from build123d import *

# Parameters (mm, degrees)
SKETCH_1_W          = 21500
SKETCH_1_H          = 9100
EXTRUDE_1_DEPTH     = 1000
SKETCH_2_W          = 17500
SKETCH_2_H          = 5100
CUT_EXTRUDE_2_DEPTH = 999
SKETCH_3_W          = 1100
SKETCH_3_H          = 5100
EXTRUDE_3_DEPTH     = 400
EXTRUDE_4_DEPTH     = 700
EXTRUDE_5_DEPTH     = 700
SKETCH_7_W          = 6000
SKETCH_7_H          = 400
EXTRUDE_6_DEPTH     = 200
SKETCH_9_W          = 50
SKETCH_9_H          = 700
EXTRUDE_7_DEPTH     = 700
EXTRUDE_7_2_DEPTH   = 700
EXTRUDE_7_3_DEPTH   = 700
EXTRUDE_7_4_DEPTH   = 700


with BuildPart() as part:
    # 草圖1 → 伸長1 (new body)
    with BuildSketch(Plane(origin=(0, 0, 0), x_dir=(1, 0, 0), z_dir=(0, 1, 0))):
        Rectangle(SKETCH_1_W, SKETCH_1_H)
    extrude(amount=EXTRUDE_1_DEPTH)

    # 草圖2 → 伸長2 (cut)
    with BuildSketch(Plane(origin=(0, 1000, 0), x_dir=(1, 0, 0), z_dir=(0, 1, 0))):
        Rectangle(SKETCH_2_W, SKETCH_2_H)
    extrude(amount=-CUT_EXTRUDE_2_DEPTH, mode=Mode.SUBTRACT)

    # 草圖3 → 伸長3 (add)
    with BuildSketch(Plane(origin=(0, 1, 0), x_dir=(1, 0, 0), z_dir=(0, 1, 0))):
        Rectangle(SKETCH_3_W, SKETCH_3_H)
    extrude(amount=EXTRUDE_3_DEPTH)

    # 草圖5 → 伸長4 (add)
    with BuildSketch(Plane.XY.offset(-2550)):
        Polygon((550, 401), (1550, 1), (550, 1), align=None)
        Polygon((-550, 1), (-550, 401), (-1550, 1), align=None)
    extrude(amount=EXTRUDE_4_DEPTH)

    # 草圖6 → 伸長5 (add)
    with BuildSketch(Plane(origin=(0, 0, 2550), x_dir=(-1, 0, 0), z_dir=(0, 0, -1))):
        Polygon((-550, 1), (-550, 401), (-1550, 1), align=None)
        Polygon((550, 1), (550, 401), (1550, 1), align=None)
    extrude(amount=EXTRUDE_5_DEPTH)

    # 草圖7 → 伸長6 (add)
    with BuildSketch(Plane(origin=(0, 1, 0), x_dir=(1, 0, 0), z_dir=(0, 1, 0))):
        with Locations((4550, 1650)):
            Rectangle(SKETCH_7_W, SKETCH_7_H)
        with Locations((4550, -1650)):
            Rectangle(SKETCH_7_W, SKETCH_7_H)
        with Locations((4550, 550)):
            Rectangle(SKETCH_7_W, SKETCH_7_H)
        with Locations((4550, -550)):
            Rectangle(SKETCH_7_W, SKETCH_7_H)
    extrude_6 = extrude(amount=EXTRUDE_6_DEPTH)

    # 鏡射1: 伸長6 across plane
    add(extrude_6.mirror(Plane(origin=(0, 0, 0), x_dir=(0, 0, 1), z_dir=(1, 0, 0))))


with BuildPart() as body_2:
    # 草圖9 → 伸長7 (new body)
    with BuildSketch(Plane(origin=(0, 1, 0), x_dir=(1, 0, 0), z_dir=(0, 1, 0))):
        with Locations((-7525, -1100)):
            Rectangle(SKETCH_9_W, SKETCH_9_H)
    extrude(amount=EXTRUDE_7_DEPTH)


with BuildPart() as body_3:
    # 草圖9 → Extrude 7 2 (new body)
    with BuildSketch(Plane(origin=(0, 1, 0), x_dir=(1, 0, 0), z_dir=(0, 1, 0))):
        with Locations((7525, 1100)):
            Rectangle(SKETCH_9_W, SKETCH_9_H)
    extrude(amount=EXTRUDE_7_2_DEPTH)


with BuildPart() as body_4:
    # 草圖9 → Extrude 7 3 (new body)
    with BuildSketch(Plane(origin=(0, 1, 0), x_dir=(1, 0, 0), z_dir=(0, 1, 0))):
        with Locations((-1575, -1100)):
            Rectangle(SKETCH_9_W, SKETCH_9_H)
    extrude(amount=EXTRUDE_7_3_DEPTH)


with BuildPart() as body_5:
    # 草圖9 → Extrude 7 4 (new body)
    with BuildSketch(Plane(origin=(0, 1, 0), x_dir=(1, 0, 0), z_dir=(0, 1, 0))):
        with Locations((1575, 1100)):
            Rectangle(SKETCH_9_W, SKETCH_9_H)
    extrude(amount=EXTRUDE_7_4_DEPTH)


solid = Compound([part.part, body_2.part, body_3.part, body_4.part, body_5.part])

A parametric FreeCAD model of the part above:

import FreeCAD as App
import Part
import Sketcher
from FreeCAD import Vector

doc = App.newDocument("Part")
body = doc.addObject("PartDesign::Body", "Body")

# Sketch on XZ plane
sketch1 = doc.addObject("Sketcher::SketchObject", "Sketch")
body.addObject(sketch1)
sketch1.AttachmentSupport = (doc.XZ_Plane, [""])
sketch1.MapMode = "FlatFace"
sketch1.addGeometry([
    Part.LineSegment(Vector(-10750, -4550, 0), Vector(-10750, 4550, 0)),
    Part.LineSegment(Vector(-10750, 4550, 0), Vector(10750, 4550, 0)),
    Part.LineSegment(Vector(10750, 4550, 0), Vector(10750, -4550, 0)),
    Part.LineSegment(Vector(10750, -4550, 0), Vector(-10750, -4550, 0)),
], False)
sketch1.addConstraint([
    Sketcher.Constraint("Coincident", 0, 2, 1, 1),
    Sketcher.Constraint("Coincident", 1, 2, 2, 1),
    Sketcher.Constraint("Coincident", 2, 2, 3, 1),
    Sketcher.Constraint("Coincident", 3, 2, 0, 1),
    Sketcher.Constraint("Vertical", 0),
    Sketcher.Constraint("Horizontal", 1),
    Sketcher.Constraint("Vertical", 2),
    Sketcher.Constraint("Horizontal", 3),
    Sketcher.Constraint("Symmetric", 0, 2, 2, 2, -1, 1),
    Sketcher.Constraint("DistanceX", 1, 1, 1, 2, 21500.0),
    Sketcher.Constraint("DistanceY", 0, 1, 0, 2, 9100.0),
])
pad1 = doc.addObject("PartDesign::Pad", "Pad")
body.addObject(pad1)
pad1.Profile = sketch1
pad1.Length = 1000
pad1.Reversed = True

# Sketch on XZ plane
sketch2 = doc.addObject("Sketcher::SketchObject", "Sketch001")
body.addObject(sketch2)
sketch2.AttachmentSupport = (doc.XZ_Plane, [""])
sketch2.MapMode = "FlatFace"
sketch2.AttachmentOffset = App.Placement(Vector(0, 0, -1000), App.Rotation())
sketch2.addGeometry([
    Part.LineSegment(Vector(-8750, -2550, 0), Vector(-8750, 2550, 0)),
    Part.LineSegment(Vector(-8750, 2550, 0), Vector(8750, 2550, 0)),
    Part.LineSegment(Vector(8750, 2550, 0), Vector(8750, -2550, 0)),
    Part.LineSegment(Vector(8750, -2550, 0), Vector(-8750, -2550, 0)),
], False)
sketch2.addConstraint([
    Sketcher.Constraint("Coincident", 0, 2, 1, 1),
    Sketcher.Constraint("Coincident", 1, 2, 2, 1),
    Sketcher.Constraint("Coincident", 2, 2, 3, 1),
    Sketcher.Constraint("Coincident", 3, 2, 0, 1),
    Sketcher.Constraint("Vertical", 0),
    Sketcher.Constraint("Horizontal", 1),
    Sketcher.Constraint("Vertical", 2),
    Sketcher.Constraint("Horizontal", 3),
    Sketcher.Constraint("Symmetric", 0, 2, 2, 2, -1, 1),
    Sketcher.Constraint("DistanceX", 1, 1, 1, 2, 17500.0),
    Sketcher.Constraint("DistanceY", 0, 1, 0, 2, 5100.0),
])
pocket1 = doc.addObject("PartDesign::Pocket", "Pocket")
body.addObject(pocket1)
pocket1.Profile = sketch2
pocket1.Length = 999
pocket1.Reversed = True

# Sketch on XZ plane
sketch3 = doc.addObject("Sketcher::SketchObject", "Sketch002")
body.addObject(sketch3)
sketch3.AttachmentSupport = (doc.XZ_Plane, [""])
sketch3.MapMode = "FlatFace"
sketch3.AttachmentOffset = App.Placement(Vector(0, 0, -1), App.Rotation())
sketch3.addGeometry([
    Part.LineSegment(Vector(-550, -2550, 0), Vector(-550, 2550, 0)),
    Part.LineSegment(Vector(-550, 2550, 0), Vector(550, 2550, 0)),
    Part.LineSegment(Vector(550, 2550, 0), Vector(550, -2550, 0)),
    Part.LineSegment(Vector(550, -2550, 0), Vector(-550, -2550, 0)),
], False)
sketch3.addConstraint([
    Sketcher.Constraint("Coincident", 0, 2, 1, 1),
    Sketcher.Constraint("Coincident", 1, 2, 2, 1),
    Sketcher.Constraint("Coincident", 2, 2, 3, 1),
    Sketcher.Constraint("Coincident", 3, 2, 0, 1),
    Sketcher.Constraint("Vertical", 0),
    Sketcher.Constraint("Horizontal", 1),
    Sketcher.Constraint("Vertical", 2),
    Sketcher.Constraint("Horizontal", 3),
    Sketcher.Constraint("Symmetric", 0, 2, 2, 2, -1, 1),
    Sketcher.Constraint("DistanceX", 1, 1, 1, 2, 1100.0),
    Sketcher.Constraint("DistanceY", 0, 1, 0, 2, 5100.0),
])
pad2 = doc.addObject("PartDesign::Pad", "Pad001")
body.addObject(pad2)
pad2.Profile = sketch3
pad2.Length = 400
pad2.Reversed = True

# Sketch on XY plane
sketch4 = doc.addObject("Sketcher::SketchObject", "Sketch003")
body.addObject(sketch4)
sketch4.AttachmentSupport = (doc.XY_Plane, [""])
sketch4.MapMode = "FlatFace"
sketch4.AttachmentOffset = App.Placement(Vector(0, 0, -2550), App.Rotation())
sketch4.addGeometry([
    Part.LineSegment(Vector(1550, 1, 0), Vector(550, 401, 0)),  # 0
    Part.LineSegment(Vector(550, 401, 0), Vector(550, 1, 0)),  # 1
    Part.LineSegment(Vector(550, 1, 0), Vector(1550, 1, 0)),  # 2
    Part.LineSegment(Vector(-550, 1, 0), Vector(-550, 401, 0)),  # 3
    Part.LineSegment(Vector(-550, 401, 0), Vector(-1550, 1, 0)),  # 4
    Part.LineSegment(Vector(-1550, 1, 0), Vector(-550, 1, 0)),  # 5
], False)
sketch4.addConstraint([
    Sketcher.Constraint("Coincident", 0, 2, 1, 1),
    Sketcher.Constraint("Coincident", 1, 2, 2, 1),
    Sketcher.Constraint("Coincident", 2, 2, 0, 1),
    Sketcher.Constraint("Coincident", 3, 2, 4, 1),
    Sketcher.Constraint("Coincident", 4, 2, 5, 1),
    Sketcher.Constraint("Coincident", 5, 2, 3, 1),
    Sketcher.Constraint("Vertical", 1),
    Sketcher.Constraint("Horizontal", 2),
    Sketcher.Constraint("Vertical", 3),
    Sketcher.Constraint("Horizontal", 5),
    Sketcher.Constraint("Symmetric", 0, 2, 3, 2, -2),
    Sketcher.Constraint("Symmetric", 2, 2, 4, 2, -2),
    Sketcher.Constraint("DistanceX", 2, 1, 2, 2, 1000.0),
    Sketcher.Constraint("DistanceY", 1, 2, 1, 1, 400.0),
    Sketcher.Constraint("DistanceX", -1, 1, 0, 2, 550.0),
    Sketcher.Constraint("DistanceY", -1, 1, 0, 2, 401.0),
])
pad3 = doc.addObject("PartDesign::Pad", "Pad002")
body.addObject(pad3)
pad3.Profile = sketch4
pad3.Length = 700

# Sketch on XY plane
sketch5 = doc.addObject("Sketcher::SketchObject", "Sketch004")
body.addObject(sketch5)
sketch5.AttachmentSupport = (doc.XY_Plane, [""])
sketch5.MapMode = "FlatFace"
sketch5.AttachmentOffset = App.Placement(Vector(0, 0, 2550), App.Rotation())
sketch5.addGeometry([
    Part.LineSegment(Vector(550, 1, 0), Vector(550, 401, 0)),  # 0
    Part.LineSegment(Vector(550, 401, 0), Vector(1550, 1, 0)),  # 1
    Part.LineSegment(Vector(1550, 1, 0), Vector(550, 1, 0)),  # 2
    Part.LineSegment(Vector(-550, 401, 0), Vector(-550, 1, 0)),  # 3
    Part.LineSegment(Vector(-550, 1, 0), Vector(-1550, 1, 0)),  # 4
    Part.LineSegment(Vector(-1550, 1, 0), Vector(-550, 401, 0)),  # 5
], False)
sketch5.addConstraint([
    Sketcher.Constraint("Coincident", 0, 2, 1, 1),
    Sketcher.Constraint("Coincident", 1, 2, 2, 1),
    Sketcher.Constraint("Coincident", 2, 2, 0, 1),
    Sketcher.Constraint("Coincident", 3, 2, 4, 1),
    Sketcher.Constraint("Coincident", 4, 2, 5, 1),
    Sketcher.Constraint("Coincident", 5, 2, 3, 1),
    Sketcher.Constraint("Vertical", 0),
    Sketcher.Constraint("Horizontal", 2),
    Sketcher.Constraint("Vertical", 3),
    Sketcher.Constraint("Horizontal", 4),
    Sketcher.Constraint("Symmetric", 2, 2, 3, 2, -2),
    Sketcher.Constraint("Horizontal", 0, 2, 5, 2),
    Sketcher.Constraint("Equal", 2, 4),
    Sketcher.Constraint("DistanceX", 2, 2, 2, 1, 1000.0),
    Sketcher.Constraint("DistanceY", 0, 1, 0, 2, 400.0),
    Sketcher.Constraint("DistanceX", -1, 1, 0, 2, 550.0),
    Sketcher.Constraint("DistanceY", -1, 1, 0, 2, 401.0),
])
pad4 = doc.addObject("PartDesign::Pad", "Pad003")
body.addObject(pad4)
pad4.Profile = sketch5
pad4.Length = 700
pad4.Reversed = True

# Sketch on XZ plane
sketch6 = doc.addObject("Sketcher::SketchObject", "Sketch005")
body.addObject(sketch6)
sketch6.AttachmentSupport = (doc.XZ_Plane, [""])
sketch6.MapMode = "FlatFace"
sketch6.AttachmentOffset = App.Placement(Vector(0, 0, -1), App.Rotation())
sketch6.addGeometry([
    Part.LineSegment(Vector(1550, -1850, 0), Vector(1550, -1450, 0)),  # 0
    Part.LineSegment(Vector(1550, -1450, 0), Vector(7550, -1450, 0)),  # 1
    Part.LineSegment(Vector(7550, -1450, 0), Vector(7550, -1850, 0)),  # 2
    Part.LineSegment(Vector(7550, -1850, 0), Vector(1550, -1850, 0)),  # 3
    Part.LineSegment(Vector(1550, 1450, 0), Vector(1550, 1850, 0)),  # 4
    Part.LineSegment(Vector(1550, 1850, 0), Vector(7550, 1850, 0)),  # 5
    Part.LineSegment(Vector(7550, 1850, 0), Vector(7550, 1450, 0)),  # 6
    Part.LineSegment(Vector(7550, 1450, 0), Vector(1550, 1450, 0)),  # 7
    Part.LineSegment(Vector(1550, -750, 0), Vector(1550, -350, 0)),  # 8
    Part.LineSegment(Vector(1550, -350, 0), Vector(7550, -350, 0)),  # 9
    Part.LineSegment(Vector(7550, -350, 0), Vector(7550, -750, 0)),  # 10
    Part.LineSegment(Vector(7550, -750, 0), Vector(1550, -750, 0)),  # 11
    Part.LineSegment(Vector(1550, 350, 0), Vector(1550, 750, 0)),  # 12
    Part.LineSegment(Vector(1550, 750, 0), Vector(7550, 750, 0)),  # 13
    Part.LineSegment(Vector(7550, 750, 0), Vector(7550, 350, 0)),  # 14
    Part.LineSegment(Vector(7550, 350, 0), Vector(1550, 350, 0)),  # 15
], False)
sketch6.addConstraint([
    Sketcher.Constraint("Coincident", 0, 2, 1, 1),
    Sketcher.Constraint("Coincident", 1, 2, 2, 1),
    Sketcher.Constraint("Coincident", 2, 2, 3, 1),
    Sketcher.Constraint("Coincident", 3, 2, 0, 1),
    Sketcher.Constraint("Coincident", 4, 2, 5, 1),
    Sketcher.Constraint("Coincident", 5, 2, 6, 1),
    Sketcher.Constraint("Coincident", 6, 2, 7, 1),
    Sketcher.Constraint("Coincident", 7, 2, 4, 1),
    Sketcher.Constraint("Coincident", 8, 2, 9, 1),
    Sketcher.Constraint("Coincident", 9, 2, 10, 1),
    Sketcher.Constraint("Coincident", 10, 2, 11, 1),
    Sketcher.Constraint("Coincident", 11, 2, 8, 1),
    Sketcher.Constraint("Coincident", 12, 2, 13, 1),
    Sketcher.Constraint("Coincident", 13, 2, 14, 1),
    Sketcher.Constraint("Coincident", 14, 2, 15, 1),
    Sketcher.Constraint("Coincident", 15, 2, 12, 1),
    Sketcher.Constraint("Vertical", 0),
    Sketcher.Constraint("Horizontal", 1),
    Sketcher.Constraint("Vertical", 2),
    Sketcher.Constraint("Horizontal", 3),
    Sketcher.Constraint("Vertical", 4),
    Sketcher.Constraint("Horizontal", 5),
    Sketcher.Constraint("Vertical", 6),
    Sketcher.Constraint("Horizontal", 7),
    Sketcher.Constraint("Vertical", 8),
    Sketcher.Constraint("Horizontal", 9),
    Sketcher.Constraint("Vertical", 10),
    Sketcher.Constraint("Horizontal", 11),
    Sketcher.Constraint("Vertical", 12),
    Sketcher.Constraint("Horizontal", 13),
    Sketcher.Constraint("Vertical", 14),
    Sketcher.Constraint("Horizontal", 15),
    Sketcher.Constraint("Symmetric", 3, 2, 4, 2, -1),
    Sketcher.Constraint("Symmetric", 1, 2, 6, 2, -1),
    Sketcher.Constraint("Symmetric", 11, 2, 12, 2, -1),
    Sketcher.Constraint("Symmetric", 9, 2, 14, 2, -1),
    Sketcher.Constraint("Vertical", 7, 2, 8, 2),
    Sketcher.Constraint("Vertical", 6, 2, 9, 2),
    Sketcher.Constraint("Equal", 6, 8),
    Sketcher.Constraint("DistanceX", 1, 1, 1, 2, 6000.0),
    Sketcher.Constraint("DistanceY", 0, 1, 0, 2, 400.0),
    Sketcher.Constraint("DistanceX", -1, 1, 0, 2, 1550.0),
    Sketcher.Constraint("DistanceY", 0, 2, -1, 1, 1450.0),
    Sketcher.Constraint("DistanceY", 8, 2, -1, 1, 350.0),
])
pad5 = doc.addObject("PartDesign::Pad", "Pad004")
body.addObject(pad5)
pad5.Profile = sketch6
pad5.Length = 200
pad5.Reversed = True
doc.recompute()

mirrored = doc.addObject("PartDesign::Mirrored", "Mirrored")
body.addObject(mirrored)
mirrored.Originals = [pad5]
mirrored.MirrorPlane = (doc.YZ_Plane, [""])
body.Tip = mirrored
body2 = doc.addObject("PartDesign::Body", "Body001")

# Sketch on XZ plane
sketch7 = doc.addObject("Sketcher::SketchObject", "Sketch006")
body2.addObject(sketch7)
sketch7.AttachmentSupport = (doc.getObject("XZ_Plane001"), [""])
sketch7.MapMode = "FlatFace"
sketch7.AttachmentOffset = App.Placement(Vector(0, 0, -1), App.Rotation())
sketch7.addGeometry([
    Part.LineSegment(Vector(-7550, 750, 0), Vector(-7550, 1450, 0)),
    Part.LineSegment(Vector(-7550, 1450, 0), Vector(-7500, 1450, 0)),
    Part.LineSegment(Vector(-7500, 1450, 0), Vector(-7500, 750, 0)),
    Part.LineSegment(Vector(-7500, 750, 0), Vector(-7550, 750, 0)),
], False)
sketch7.addConstraint([
    Sketcher.Constraint("Coincident", 0, 2, 1, 1),
    Sketcher.Constraint("Coincident", 1, 2, 2, 1),
    Sketcher.Constraint("Coincident", 2, 2, 3, 1),
    Sketcher.Constraint("Coincident", 3, 2, 0, 1),
    Sketcher.Constraint("Vertical", 0),
    Sketcher.Constraint("Horizontal", 1),
    Sketcher.Constraint("Vertical", 2),
    Sketcher.Constraint("Horizontal", 3),
    Sketcher.Constraint("DistanceX", 1, 1, 1, 2, 50.0),
    Sketcher.Constraint("DistanceY", 0, 1, 0, 2, 700.0),
    Sketcher.Constraint("DistanceX", 0, 2, -1, 1, 7550.0),
    Sketcher.Constraint("DistanceY", -1, 1, 0, 2, 1450.0),
])
pad6 = doc.addObject("PartDesign::Pad", "Pad005")
body2.addObject(pad6)
pad6.Profile = sketch7
pad6.Length = 700
pad6.Reversed = True
body3 = doc.addObject("PartDesign::Body", "Body002")

# Sketch on XZ plane
sketch8 = doc.addObject("Sketcher::SketchObject", "Sketch007")
body3.addObject(sketch8)
sketch8.AttachmentSupport = (doc.getObject("XZ_Plane002"), [""])
sketch8.MapMode = "FlatFace"
sketch8.AttachmentOffset = App.Placement(Vector(0, 0, -1), App.Rotation())
sketch8.addGeometry([
    Part.LineSegment(Vector(7500, -1450, 0), Vector(7500, -750, 0)),
    Part.LineSegment(Vector(7500, -750, 0), Vector(7550, -750, 0)),
    Part.LineSegment(Vector(7550, -750, 0), Vector(7550, -1450, 0)),
    Part.LineSegment(Vector(7550, -1450, 0), Vector(7500, -1450, 0)),
], False)
sketch8.addConstraint([
    Sketcher.Constraint("Coincident", 0, 2, 1, 1),
    Sketcher.Constraint("Coincident", 1, 2, 2, 1),
    Sketcher.Constraint("Coincident", 2, 2, 3, 1),
    Sketcher.Constraint("Coincident", 3, 2, 0, 1),
    Sketcher.Constraint("Vertical", 0),
    Sketcher.Constraint("Horizontal", 1),
    Sketcher.Constraint("Vertical", 2),
    Sketcher.Constraint("Horizontal", 3),
    Sketcher.Constraint("DistanceX", 1, 1, 1, 2, 50.0),
    Sketcher.Constraint("DistanceY", 0, 1, 0, 2, 700.0),
    Sketcher.Constraint("DistanceX", -1, 1, 0, 2, 7500.0),
    Sketcher.Constraint("DistanceY", 0, 2, -1, 1, 750.0),
])
pad7 = doc.addObject("PartDesign::Pad", "Pad006")
body3.addObject(pad7)
pad7.Profile = sketch8
pad7.Length = 700
pad7.Reversed = True
body4 = doc.addObject("PartDesign::Body", "Body003")

# Sketch on XZ plane
sketch9 = doc.addObject("Sketcher::SketchObject", "Sketch008")
body4.addObject(sketch9)
sketch9.AttachmentSupport = (doc.getObject("XZ_Plane003"), [""])
sketch9.MapMode = "FlatFace"
sketch9.AttachmentOffset = App.Placement(Vector(0, 0, -1), App.Rotation())
sketch9.addGeometry([
    Part.LineSegment(Vector(-1600, 750, 0), Vector(-1600, 1450, 0)),
    Part.LineSegment(Vector(-1600, 1450, 0), Vector(-1550, 1450, 0)),
    Part.LineSegment(Vector(-1550, 1450, 0), Vector(-1550, 750, 0)),
    Part.LineSegment(Vector(-1550, 750, 0), Vector(-1600, 750, 0)),
], False)
sketch9.addConstraint([
    Sketcher.Constraint("Coincident", 0, 2, 1, 1),
    Sketcher.Constraint("Coincident", 1, 2, 2, 1),
    Sketcher.Constraint("Coincident", 2, 2, 3, 1),
    Sketcher.Constraint("Coincident", 3, 2, 0, 1),
    Sketcher.Constraint("Vertical", 0),
    Sketcher.Constraint("Horizontal", 1),
    Sketcher.Constraint("Vertical", 2),
    Sketcher.Constraint("Horizontal", 3),
    Sketcher.Constraint("DistanceX", 1, 1, 1, 2, 50.0),
    Sketcher.Constraint("DistanceY", 0, 1, 0, 2, 700.0),
    Sketcher.Constraint("DistanceX", 0, 2, -1, 1, 1600.0),
    Sketcher.Constraint("DistanceY", -1, 1, 0, 2, 1450.0),
])
pad8 = doc.addObject("PartDesign::Pad", "Pad007")
body4.addObject(pad8)
pad8.Profile = sketch9
pad8.Length = 700
pad8.Reversed = True
body5 = doc.addObject("PartDesign::Body", "Body004")

# Sketch on XZ plane
sketch10 = doc.addObject("Sketcher::SketchObject", "Sketch009")
body5.addObject(sketch10)
sketch10.AttachmentSupport = (doc.getObject("XZ_Plane004"), [""])
sketch10.MapMode = "FlatFace"
sketch10.AttachmentOffset = App.Placement(Vector(0, 0, -1), App.Rotation())
sketch10.addGeometry([
    Part.LineSegment(Vector(1550, -1450, 0), Vector(1550, -750, 0)),
    Part.LineSegment(Vector(1550, -750, 0), Vector(1600, -750, 0)),
    Part.LineSegment(Vector(1600, -750, 0), Vector(1600, -1450, 0)),
    Part.LineSegment(Vector(1600, -1450, 0), Vector(1550, -1450, 0)),
], False)
sketch10.addConstraint([
    Sketcher.Constraint("Coincident", 0, 2, 1, 1),
    Sketcher.Constraint("Coincident", 1, 2, 2, 1),
    Sketcher.Constraint("Coincident", 2, 2, 3, 1),
    Sketcher.Constraint("Coincident", 3, 2, 0, 1),
    Sketcher.Constraint("Vertical", 0),
    Sketcher.Constraint("Horizontal", 1),
    Sketcher.Constraint("Vertical", 2),
    Sketcher.Constraint("Horizontal", 3),
    Sketcher.Constraint("DistanceX", 1, 1, 1, 2, 50.0),
    Sketcher.Constraint("DistanceY", 0, 1, 0, 2, 700.0),
    Sketcher.Constraint("DistanceX", -1, 1, 0, 2, 1550.0),
    Sketcher.Constraint("DistanceY", 0, 2, -1, 1, 750.0),
])
pad9 = doc.addObject("PartDesign::Pad", "Pad008")
body5.addObject(pad9)
pad9.Profile = sketch10
pad9.Length = 700
pad9.Reversed = True

doc.recompute()
